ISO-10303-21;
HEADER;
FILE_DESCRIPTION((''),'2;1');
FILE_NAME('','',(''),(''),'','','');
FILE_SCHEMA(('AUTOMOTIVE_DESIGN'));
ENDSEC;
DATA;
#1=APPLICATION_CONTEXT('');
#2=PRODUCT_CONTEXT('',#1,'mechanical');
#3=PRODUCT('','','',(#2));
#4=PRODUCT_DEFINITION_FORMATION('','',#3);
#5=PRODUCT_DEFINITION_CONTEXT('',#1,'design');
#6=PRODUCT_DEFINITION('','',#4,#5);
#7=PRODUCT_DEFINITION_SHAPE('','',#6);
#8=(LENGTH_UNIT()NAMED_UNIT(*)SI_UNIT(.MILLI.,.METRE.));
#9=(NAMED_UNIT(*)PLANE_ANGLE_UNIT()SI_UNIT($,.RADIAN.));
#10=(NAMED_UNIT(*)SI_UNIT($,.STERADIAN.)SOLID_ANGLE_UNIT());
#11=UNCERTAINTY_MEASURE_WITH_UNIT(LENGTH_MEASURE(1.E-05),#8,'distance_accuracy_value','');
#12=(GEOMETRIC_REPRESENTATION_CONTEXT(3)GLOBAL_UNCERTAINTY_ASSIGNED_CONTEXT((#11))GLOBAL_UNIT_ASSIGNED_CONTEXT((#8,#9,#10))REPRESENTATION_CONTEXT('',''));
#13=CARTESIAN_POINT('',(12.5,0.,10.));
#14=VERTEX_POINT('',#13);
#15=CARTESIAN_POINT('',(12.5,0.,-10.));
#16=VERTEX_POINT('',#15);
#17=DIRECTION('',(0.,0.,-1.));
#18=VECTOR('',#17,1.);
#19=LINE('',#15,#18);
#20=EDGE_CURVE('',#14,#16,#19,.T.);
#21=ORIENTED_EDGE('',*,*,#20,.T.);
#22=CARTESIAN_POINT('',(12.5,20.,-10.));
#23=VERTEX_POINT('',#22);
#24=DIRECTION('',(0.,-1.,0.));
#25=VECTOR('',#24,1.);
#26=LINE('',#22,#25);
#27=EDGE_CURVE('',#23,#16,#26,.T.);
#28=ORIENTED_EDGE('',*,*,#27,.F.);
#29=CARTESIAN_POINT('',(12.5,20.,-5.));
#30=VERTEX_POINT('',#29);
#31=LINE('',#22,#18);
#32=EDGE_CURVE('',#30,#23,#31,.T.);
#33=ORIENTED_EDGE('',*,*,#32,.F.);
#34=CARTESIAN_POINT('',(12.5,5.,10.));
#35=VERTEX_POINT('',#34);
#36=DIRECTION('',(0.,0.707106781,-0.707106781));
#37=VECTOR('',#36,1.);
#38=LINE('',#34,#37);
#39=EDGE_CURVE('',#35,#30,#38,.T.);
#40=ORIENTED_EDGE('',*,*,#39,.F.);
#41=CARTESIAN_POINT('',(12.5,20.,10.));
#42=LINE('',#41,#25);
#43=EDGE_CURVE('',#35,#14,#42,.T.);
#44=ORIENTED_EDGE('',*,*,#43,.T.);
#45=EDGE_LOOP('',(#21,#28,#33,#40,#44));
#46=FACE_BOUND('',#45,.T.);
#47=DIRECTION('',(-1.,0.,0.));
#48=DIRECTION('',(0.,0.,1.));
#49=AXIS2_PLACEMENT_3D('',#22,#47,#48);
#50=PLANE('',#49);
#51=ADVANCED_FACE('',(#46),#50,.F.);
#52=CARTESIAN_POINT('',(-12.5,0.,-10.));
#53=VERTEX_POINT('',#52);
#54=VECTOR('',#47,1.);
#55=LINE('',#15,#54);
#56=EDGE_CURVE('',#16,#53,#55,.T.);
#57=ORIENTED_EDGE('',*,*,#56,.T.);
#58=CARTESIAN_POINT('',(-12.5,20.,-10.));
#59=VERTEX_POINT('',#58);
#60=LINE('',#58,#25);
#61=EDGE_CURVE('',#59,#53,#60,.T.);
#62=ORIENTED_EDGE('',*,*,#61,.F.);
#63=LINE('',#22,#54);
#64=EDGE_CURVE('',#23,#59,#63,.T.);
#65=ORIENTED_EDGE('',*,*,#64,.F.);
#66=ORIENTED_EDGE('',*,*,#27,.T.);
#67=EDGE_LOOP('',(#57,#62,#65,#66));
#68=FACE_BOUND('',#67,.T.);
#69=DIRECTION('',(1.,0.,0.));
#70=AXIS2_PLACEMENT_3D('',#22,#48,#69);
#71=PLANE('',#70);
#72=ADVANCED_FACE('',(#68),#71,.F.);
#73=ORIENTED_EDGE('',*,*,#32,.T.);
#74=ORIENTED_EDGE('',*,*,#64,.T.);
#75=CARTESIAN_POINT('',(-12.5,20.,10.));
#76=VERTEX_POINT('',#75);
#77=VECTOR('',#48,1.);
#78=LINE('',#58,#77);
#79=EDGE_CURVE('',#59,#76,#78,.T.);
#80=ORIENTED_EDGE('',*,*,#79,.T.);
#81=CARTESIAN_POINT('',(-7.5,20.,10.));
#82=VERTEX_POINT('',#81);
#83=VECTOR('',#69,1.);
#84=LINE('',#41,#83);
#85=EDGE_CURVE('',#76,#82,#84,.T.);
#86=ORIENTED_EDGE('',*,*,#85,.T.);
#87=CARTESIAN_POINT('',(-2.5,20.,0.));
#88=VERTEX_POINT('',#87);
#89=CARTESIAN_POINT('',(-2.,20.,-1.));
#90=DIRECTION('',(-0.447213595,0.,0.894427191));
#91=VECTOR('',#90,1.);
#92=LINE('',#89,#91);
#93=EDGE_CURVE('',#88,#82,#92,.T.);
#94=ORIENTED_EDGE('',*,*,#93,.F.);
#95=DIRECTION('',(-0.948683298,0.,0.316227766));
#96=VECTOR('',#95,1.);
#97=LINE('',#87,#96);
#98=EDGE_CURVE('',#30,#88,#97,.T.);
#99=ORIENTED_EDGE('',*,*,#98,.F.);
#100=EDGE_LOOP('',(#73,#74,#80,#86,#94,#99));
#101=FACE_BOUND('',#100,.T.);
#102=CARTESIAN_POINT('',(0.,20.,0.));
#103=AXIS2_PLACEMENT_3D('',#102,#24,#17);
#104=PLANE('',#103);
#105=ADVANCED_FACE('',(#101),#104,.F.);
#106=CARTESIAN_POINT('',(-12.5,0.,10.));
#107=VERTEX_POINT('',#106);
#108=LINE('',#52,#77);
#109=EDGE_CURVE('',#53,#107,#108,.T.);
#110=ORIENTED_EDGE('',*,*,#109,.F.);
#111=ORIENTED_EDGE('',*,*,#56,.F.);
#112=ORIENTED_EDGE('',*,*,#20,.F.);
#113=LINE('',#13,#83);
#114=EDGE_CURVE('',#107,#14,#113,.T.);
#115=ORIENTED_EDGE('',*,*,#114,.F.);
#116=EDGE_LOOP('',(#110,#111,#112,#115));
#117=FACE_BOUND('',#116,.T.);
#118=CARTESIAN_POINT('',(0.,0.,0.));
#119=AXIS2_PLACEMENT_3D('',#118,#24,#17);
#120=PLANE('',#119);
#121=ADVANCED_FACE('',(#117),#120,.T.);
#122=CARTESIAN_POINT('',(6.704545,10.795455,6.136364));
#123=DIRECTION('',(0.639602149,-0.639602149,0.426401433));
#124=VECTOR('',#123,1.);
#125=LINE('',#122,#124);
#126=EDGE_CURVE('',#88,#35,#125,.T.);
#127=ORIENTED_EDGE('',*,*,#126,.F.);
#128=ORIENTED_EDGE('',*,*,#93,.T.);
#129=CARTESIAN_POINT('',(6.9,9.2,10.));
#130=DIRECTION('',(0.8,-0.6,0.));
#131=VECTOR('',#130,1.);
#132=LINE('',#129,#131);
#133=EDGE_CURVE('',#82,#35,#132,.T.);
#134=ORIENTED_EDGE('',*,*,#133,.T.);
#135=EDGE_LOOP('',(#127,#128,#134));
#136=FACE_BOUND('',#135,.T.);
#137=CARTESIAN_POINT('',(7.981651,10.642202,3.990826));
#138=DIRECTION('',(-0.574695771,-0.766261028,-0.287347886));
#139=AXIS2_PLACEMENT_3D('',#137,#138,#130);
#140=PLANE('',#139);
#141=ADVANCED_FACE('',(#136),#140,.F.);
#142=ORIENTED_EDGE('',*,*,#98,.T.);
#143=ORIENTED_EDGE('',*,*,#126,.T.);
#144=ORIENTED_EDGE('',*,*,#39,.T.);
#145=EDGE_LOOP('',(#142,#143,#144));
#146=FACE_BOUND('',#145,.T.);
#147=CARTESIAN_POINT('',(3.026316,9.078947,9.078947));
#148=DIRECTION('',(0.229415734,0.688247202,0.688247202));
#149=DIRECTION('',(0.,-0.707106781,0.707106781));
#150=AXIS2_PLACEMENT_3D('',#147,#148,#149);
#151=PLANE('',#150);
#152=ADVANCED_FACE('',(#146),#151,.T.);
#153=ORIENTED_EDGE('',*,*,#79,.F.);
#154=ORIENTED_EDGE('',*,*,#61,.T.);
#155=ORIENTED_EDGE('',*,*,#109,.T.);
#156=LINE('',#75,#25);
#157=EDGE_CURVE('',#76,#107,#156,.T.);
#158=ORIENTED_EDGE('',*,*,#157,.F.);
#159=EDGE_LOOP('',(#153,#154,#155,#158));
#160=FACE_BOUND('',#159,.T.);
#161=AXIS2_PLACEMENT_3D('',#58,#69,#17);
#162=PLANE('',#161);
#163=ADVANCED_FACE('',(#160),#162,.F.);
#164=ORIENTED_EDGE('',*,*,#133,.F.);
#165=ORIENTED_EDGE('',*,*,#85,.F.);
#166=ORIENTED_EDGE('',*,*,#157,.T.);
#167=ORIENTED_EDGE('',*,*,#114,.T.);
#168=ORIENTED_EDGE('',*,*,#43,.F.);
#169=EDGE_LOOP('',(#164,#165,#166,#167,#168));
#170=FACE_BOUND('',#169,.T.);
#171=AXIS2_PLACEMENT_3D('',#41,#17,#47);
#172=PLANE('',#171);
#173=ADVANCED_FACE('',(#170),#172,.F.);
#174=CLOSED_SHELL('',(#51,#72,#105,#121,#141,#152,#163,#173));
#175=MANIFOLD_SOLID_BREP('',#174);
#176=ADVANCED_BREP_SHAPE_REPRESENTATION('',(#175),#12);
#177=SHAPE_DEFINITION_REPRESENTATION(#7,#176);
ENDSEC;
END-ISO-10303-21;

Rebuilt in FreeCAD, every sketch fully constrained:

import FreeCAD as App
import Part
import Sketcher
from FreeCAD import Vector
Q = App.Units.Quantity


def add_polygon(sketch, points):
    """Adds a closed chain of lines whose ends are joined by coincident constraints."""
    first, n = sketch.GeometryCount, len(points)
    for a, b in zip(points, points[1:] + points[:1]):
        sketch.addGeometry(Part.LineSegment(App.Vector(*a, 0), App.Vector(*b, 0)), False)
    for i in range(n):
        sketch.addConstraint(Sketcher.Constraint("Coincident", first + i, 2, first + (i + 1) % n, 1))

doc = App.newDocument("Part")
params = doc.addObject("Spreadsheet::Sheet", "Params")
for row, (alias, value) in enumerate([
    ("sketch1_width", "25 mm"),
    ("sketch1_height", "20 mm"),
    ("pad1_length", "20 mm"),
    ("sketch2_length", "25 mm"),
    ("pocket1_length", "20 mm"),
    ("pocket2_length", "20 mm"),
], start=1):
    params.set(f"A{row}", alias)
    params.set(f"B{row}", "=" + value)
    params.setAlias(f"B{row}", alias)

body = doc.addObject("PartDesign::Body", "Body")

# Sketch on XZ plane
sketch1 = doc.addObject("Sketcher::SketchObject", "Sketch")
body.addObject(sketch1)
sketch1.AttachmentSupport = (doc.XZ_Plane, [""])
sketch1.MapMode = "FlatFace"
add_polygon(sketch1, [(-12, -10), (-12, 10), (12, 10), (12, -10)])  # lines 0-3
sketch1.addConstraint([
    Sketcher.Constraint("Vertical", 0),
    Sketcher.Constraint("Horizontal", 1),
    Sketcher.Constraint("Vertical", 2),
    Sketcher.Constraint("Horizontal", 3),
    Sketcher.Constraint("Symmetric", 0, 2, 2, 2, -1, 1),
    Sketcher.Constraint("DistanceX", 1, 1, 1, 2, Q("25 mm")),
    Sketcher.Constraint("DistanceY", 0, 1, 0, 2, Q("20 mm")),
])
sketch1.setExpression("Constraints[9]", "Params.sketch1_width")
sketch1.setExpression("Constraints[10]", "Params.sketch1_height")
pad1 = doc.addObject("PartDesign::Pad", "Pad")
body.addObject(pad1)
pad1.Profile = sketch1
pad1.setExpression("Length", "Params.pad1_length")
pad1.Reversed = True

# Sketch on an angled plane
sketch2 = doc.addObject("Sketcher::SketchObject", "Sketch001")
body.addObject(sketch2)
sketch2.Placement = App.Placement(Vector(7.981651, 10.642202, 3.990826), App.Rotation(Vector(-0.818367137, 0.538104419, 0.201789157), Vector(0, 0.351123442, -0.936329178), Vector(-0.574695771, -0.766261028, -0.287347886), "ZXY"))
add_polygon(sketch2, [(-6, -8), (19, -2), (13, 7)])  # lines 0-2
sketch2.addConstraint([
    Sketcher.Constraint("Distance", 0, Q("25 mm")),
    Sketcher.Constraint("Distance", 1, Q("11.18034 mm")),
    Sketcher.Constraint("Distance", 2, Q("23.452079 mm")),
    Sketcher.Constraint("DistanceY", -1, 1, 1, 2, Q("7.022469 mm")),
    Sketcher.Constraint("DistanceY", 0, 2, 1, 2, Q("9.363292 mm")),
    Sketcher.Constraint("DistanceX", -1, 1, 0, 2, Q("18.917733 mm")),
])
sketch2.setExpression("Constraints[3]", "Params.sketch2_length")
pocket1 = doc.addObject("PartDesign::Pocket", "Pocket")
body.addObject(pocket1)
pocket1.Profile = sketch2
pocket1.setExpression("Length", "Params.pocket1_length")

# Sketch on an angled plane
sketch3 = doc.addObject("Sketcher::SketchObject", "Sketch002")
body.addObject(sketch3)
sketch3.Placement = App.Placement(Vector(3.026316, 9.078947, 9.078947), App.Rotation(Vector(0.973328527, -0.162221421, -0.162221421), Vector(0, 0.707106782, -0.707106782), Vector(0.229415734, 0.688247202, 0.688247202), "ZXY"))
add_polygon(sketch3, [(10, -4), (10, 18), (-6, 14)])  # lines 0-2
sketch3.addConstraint([
    Sketcher.Constraint("Vertical", 0),
    Sketcher.Constraint("Distance", 1, Q("15.811388 mm")),
    Sketcher.Constraint("Distance", 2, Q("23.452079 mm")),
    Sketcher.Constraint("DistanceY", 0, 1, 0, 2, Q("21.213203 mm")),
    Sketcher.Constraint("DistanceY", -1, 1, 0, 2, Q("17.67767 mm")),
    Sketcher.Constraint("DistanceX", 1, 2, -1, 1, Q("5.67775 mm")),
])
pocket2 = doc.addObject("PartDesign::Pocket", "Pocket001")
body.addObject(pocket2)
pocket2.Profile = sketch3
pocket2.setExpression("Length", "Params.pocket2_length")
pocket2.Reversed = True

doc.recompute()
